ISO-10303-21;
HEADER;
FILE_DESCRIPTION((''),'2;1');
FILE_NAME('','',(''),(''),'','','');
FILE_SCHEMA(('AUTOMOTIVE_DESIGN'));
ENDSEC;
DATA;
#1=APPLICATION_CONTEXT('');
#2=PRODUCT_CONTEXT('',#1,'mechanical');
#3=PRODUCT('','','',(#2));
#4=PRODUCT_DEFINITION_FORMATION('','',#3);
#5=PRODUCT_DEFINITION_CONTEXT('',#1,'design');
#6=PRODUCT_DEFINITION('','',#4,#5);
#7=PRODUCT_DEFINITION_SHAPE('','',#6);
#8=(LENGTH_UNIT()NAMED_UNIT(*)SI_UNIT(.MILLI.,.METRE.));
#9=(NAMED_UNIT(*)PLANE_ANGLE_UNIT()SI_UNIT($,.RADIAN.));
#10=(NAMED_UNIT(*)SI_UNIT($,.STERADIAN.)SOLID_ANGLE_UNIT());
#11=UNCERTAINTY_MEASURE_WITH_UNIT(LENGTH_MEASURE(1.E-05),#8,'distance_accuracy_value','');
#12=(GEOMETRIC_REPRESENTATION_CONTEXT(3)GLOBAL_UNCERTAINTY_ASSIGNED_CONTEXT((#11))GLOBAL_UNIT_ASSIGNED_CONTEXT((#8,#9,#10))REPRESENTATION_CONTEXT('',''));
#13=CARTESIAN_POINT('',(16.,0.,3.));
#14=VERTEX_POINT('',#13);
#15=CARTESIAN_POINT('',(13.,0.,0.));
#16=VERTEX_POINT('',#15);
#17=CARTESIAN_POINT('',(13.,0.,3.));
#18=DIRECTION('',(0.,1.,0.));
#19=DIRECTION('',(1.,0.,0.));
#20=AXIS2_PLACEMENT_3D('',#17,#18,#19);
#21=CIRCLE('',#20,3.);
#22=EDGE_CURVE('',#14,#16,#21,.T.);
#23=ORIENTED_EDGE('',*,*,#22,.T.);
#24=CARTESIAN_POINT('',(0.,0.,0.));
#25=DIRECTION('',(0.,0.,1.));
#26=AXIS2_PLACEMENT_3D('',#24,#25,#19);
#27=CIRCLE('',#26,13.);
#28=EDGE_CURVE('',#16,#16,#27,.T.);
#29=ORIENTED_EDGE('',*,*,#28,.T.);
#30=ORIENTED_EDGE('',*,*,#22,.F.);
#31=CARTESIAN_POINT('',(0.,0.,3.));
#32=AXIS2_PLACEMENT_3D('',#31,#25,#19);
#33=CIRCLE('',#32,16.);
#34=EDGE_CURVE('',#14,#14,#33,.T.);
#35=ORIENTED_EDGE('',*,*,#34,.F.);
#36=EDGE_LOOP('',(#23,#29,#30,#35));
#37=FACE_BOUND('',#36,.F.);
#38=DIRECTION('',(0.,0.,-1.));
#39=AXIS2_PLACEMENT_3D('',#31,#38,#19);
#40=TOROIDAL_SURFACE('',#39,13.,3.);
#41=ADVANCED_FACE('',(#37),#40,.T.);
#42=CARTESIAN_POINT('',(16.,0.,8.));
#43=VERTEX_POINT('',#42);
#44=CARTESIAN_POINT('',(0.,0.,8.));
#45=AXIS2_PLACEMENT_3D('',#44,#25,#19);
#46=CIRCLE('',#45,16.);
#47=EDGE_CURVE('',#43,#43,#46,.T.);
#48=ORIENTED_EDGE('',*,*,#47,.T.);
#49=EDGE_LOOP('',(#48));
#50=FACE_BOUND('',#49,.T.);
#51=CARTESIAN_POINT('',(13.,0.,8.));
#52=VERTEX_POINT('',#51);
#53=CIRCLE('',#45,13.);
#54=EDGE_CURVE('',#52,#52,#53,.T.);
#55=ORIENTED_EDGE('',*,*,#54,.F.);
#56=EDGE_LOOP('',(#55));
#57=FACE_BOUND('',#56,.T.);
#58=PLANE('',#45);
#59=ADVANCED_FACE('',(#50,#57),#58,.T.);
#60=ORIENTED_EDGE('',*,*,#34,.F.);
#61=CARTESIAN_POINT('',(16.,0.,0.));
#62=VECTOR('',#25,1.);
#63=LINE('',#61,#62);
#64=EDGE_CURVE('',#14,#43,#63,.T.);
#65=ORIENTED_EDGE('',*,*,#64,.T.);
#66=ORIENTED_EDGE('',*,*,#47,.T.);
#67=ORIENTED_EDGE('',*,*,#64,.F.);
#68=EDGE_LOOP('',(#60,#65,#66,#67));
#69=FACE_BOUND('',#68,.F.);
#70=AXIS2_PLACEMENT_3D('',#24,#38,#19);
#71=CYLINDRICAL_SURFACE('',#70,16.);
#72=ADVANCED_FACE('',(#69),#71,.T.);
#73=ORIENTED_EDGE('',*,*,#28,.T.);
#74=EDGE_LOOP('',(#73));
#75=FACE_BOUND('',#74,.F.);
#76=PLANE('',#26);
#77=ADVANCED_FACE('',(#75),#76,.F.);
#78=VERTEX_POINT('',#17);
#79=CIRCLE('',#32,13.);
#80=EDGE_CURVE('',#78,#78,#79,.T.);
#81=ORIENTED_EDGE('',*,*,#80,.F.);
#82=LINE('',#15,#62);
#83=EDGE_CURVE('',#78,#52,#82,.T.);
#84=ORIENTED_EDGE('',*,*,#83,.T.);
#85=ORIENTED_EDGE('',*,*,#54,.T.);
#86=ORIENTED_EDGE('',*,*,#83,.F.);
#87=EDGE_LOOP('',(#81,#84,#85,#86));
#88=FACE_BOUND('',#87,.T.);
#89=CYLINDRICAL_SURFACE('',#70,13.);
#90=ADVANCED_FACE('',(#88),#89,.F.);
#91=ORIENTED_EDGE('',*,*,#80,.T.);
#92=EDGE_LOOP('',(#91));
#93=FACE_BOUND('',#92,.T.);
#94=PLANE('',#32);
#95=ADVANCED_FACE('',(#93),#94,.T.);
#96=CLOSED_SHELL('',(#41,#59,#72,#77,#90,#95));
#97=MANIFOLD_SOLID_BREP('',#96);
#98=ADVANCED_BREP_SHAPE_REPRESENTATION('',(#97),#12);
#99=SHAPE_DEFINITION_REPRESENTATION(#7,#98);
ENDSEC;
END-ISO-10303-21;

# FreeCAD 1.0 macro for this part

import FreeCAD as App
import Part
import Sketcher
Q = App.Units.Quantity


def edges_at(feature, points):
    """Names of the edges that pass closest to the given points."""
    edges = feature.Shape.Edges
    near = lambda p: min(range(len(edges)), key=lambda i: edges[i].distToShape(Part.Vertex(*p))[0])
    return sorted({f"Edge{near(p) + 1}" for p in points})

doc = App.newDocument("Part")
body = doc.addObject("PartDesign::Body", "Body")

sketch1 = body.newObject("Sketcher::SketchObject", "Sketch")
sketch1.AttachmentSupport = (doc.getObject("XY_Plane"), [""])
sketch1.MapMode = "FlatFace"
sketch1.addGeometry(Part.Circle(App.Vector(0, 0, 0), App.Vector(0, 0, 1), 13), False)
sketch1.addConstraint([
    Sketcher.Constraint("Coincident", 0, 3, -1, 1),
    Sketcher.Constraint("Diameter", 0, Q("26 mm")),
])
pad1 = body.newObject("PartDesign::Pad", "Pad")
pad1.Profile = sketch1
pad1.Length = 3

sketch2 = body.newObject("Sketcher::SketchObject", "Sketch001")
sketch2.AttachmentSupport = (doc.getObject("XY_Plane"), [""])
sketch2.MapMode = "FlatFace"
sketch2.addGeometry([
    Part.Circle(App.Vector(0, 0, 0), App.Vector(0, 0, 1), 16),
    Part.Circle(App.Vector(0, 0, 0), App.Vector(0, 0, 1), 13),
], False)
sketch2.addConstraint([
    Sketcher.Constraint("Coincident", 0, 3, -1, 1),
    Sketcher.Constraint("Coincident", 1, 3, -1, 1),
    Sketcher.Constraint("Diameter", 0, Q("32 mm")),
    Sketcher.Constraint("Diameter", 1, Q("26 mm")),
])
pad2 = body.newObject("PartDesign::Pad", "Pad001")
pad2.Profile = sketch2
pad2.Length = 8
doc.recompute()

fillet = body.newObject("PartDesign::Fillet", "Fillet")
fillet.Base = (pad2, edges_at(pad2, [(-16, 0, 0)]))
fillet.Radius = 3

doc.recompute()
